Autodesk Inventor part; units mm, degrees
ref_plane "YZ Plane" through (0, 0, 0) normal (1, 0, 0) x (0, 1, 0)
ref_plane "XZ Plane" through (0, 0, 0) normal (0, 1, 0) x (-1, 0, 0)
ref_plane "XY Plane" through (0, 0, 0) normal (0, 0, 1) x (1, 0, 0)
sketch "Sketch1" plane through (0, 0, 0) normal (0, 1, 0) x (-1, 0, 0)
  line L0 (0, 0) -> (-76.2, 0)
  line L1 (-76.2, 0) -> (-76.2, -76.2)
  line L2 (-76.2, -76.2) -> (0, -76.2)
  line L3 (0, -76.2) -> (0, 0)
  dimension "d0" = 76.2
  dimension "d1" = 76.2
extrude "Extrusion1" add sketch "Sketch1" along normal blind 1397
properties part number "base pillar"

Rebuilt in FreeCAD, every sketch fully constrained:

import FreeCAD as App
import Part
import Sketcher
from FreeCAD import Vector
Q = App.Units.Quantity

doc = App.newDocument("Part")
body = doc.addObject("PartDesign::Body", "Body")

# Sketch on XZ plane
sketch1 = body.newObject("Sketcher::SketchObject", "Sketch")
sketch1.AttachmentSupport = (doc.getObject("XZ_Plane"), [""])
sketch1.MapMode = "FlatFace"
sketch1.addGeometry([
    Part.LineSegment(Vector(0, -76, 0), Vector(0, 0, 0)),
    Part.LineSegment(Vector(0, 0, 0), Vector(76, 0, 0)),
    Part.LineSegment(Vector(76, 0, 0), Vector(76, -76, 0)),
    Part.LineSegment(Vector(76, -76, 0), Vector(0, -76, 0)),
], False)
sketch1.addConstraint([
    Sketcher.Constraint("Coincident", 0, 2, 1, 1),
    Sketcher.Constraint("Coincident", 1, 2, 2, 1),
    Sketcher.Constraint("Coincident", 2, 2, 3, 1),
    Sketcher.Constraint("Coincident", 3, 2, 0, 1),
    Sketcher.Constraint("Vertical", 0),
    Sketcher.Constraint("Horizontal", 1),
    Sketcher.Constraint("Vertical", 2),
    Sketcher.Constraint("Horizontal", 3),
    Sketcher.Constraint("Coincident", 0, 2, -1, 1),
    Sketcher.Constraint("Equal", 3, 0),
    Sketcher.Constraint("DistanceX", 1, 1, 1, 2, Q("3 in")),
])
pad1 = body.newObject("PartDesign::Pad", "Pad")
pad1.Profile = sketch1
pad1.Length = Q("55 in")
pad1.Reversed = True

doc.recompute()
